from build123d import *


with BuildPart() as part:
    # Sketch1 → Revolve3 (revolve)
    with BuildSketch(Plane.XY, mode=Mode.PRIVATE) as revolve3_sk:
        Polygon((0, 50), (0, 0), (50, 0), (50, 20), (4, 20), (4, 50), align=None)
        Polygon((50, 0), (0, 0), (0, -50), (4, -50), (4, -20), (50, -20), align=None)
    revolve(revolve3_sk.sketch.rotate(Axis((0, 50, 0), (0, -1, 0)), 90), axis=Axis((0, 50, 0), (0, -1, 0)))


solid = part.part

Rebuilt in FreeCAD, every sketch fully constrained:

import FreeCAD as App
import Part
import Sketcher
from FreeCAD import Vector

doc = App.newDocument("Part")
body = doc.addObject("PartDesign::Body", "Body")

sketch1 = body.newObject("Sketcher::SketchObject", "Sketch")
sketch1.AttachmentSupport = (doc.getObject("XY_Plane"), [""])
sketch1.MapMode = "FlatFace"
sketch1.addGeometry(Part.LineSegment(Vector(0, 50, 0), Vector(0, -50, 0)), False)
sketch1.addGeometry(Part.LineSegment(Vector(0, -50, 0), Vector(4, -50, 0)), False)
sketch1.addGeometry(Part.LineSegment(Vector(4, -50, 0), Vector(4, -20, 0)), False)
sketch1.addGeometry(Part.LineSegment(Vector(4, -20, 0), Vector(50, -20, 0)), False)
sketch1.addGeometry(Part.LineSegment(Vector(50, -20, 0), Vector(50, 20, 0)), False)
sketch1.addGeometry(Part.LineSegment(Vector(50, 20, 0), Vector(4, 20, 0)), False)
sketch1.addGeometry(Part.LineSegment(Vector(4, 20, 0), Vector(4, 50, 0)), False)
sketch1.addGeometry(Part.LineSegment(Vector(4, 50, 0), Vector(0, 50, 0)), False)
sketch1.addConstraint(Sketcher.Constraint("Coincident", 0, 2, 1, 1))
sketch1.addConstraint(Sketcher.Constraint("Coincident", 1, 2, 2, 1))
sketch1.addConstraint(Sketcher.Constraint("Coincident", 2, 2, 3, 1))
sketch1.addConstraint(Sketcher.Constraint("Coincident", 3, 2, 4, 1))
sketch1.addConstraint(Sketcher.Constraint("Coincident", 4, 2, 5, 1))
sketch1.addConstraint(Sketcher.Constraint("Coincident", 5, 2, 6, 1))
sketch1.addConstraint(Sketcher.Constraint("Coincident", 6, 2, 7, 1))
sketch1.addConstraint(Sketcher.Constraint("Coincident", 7, 2, 0, 1))
sketch1.addConstraint(Sketcher.Constraint("Vertical", 0))
sketch1.addConstraint(Sketcher.Constraint("Horizontal", 1))
sketch1.addConstraint(Sketcher.Constraint("Vertical", 2))
sketch1.addConstraint(Sketcher.Constraint("Horizontal", 3))
sketch1.addConstraint(Sketcher.Constraint("Vertical", 4))
sketch1.addConstraint(Sketcher.Constraint("Horizontal", 5))
sketch1.addConstraint(Sketcher.Constraint("Vertical", 6))
sketch1.addConstraint(Sketcher.Constraint("Horizontal", 7))
sketch1.addConstraint(Sketcher.Constraint("Symmetric", 0, 2, 7, 2, -1, 1))
sketch1.addConstraint(Sketcher.Constraint("Symmetric", 2, 2, 5, 2, -1))
sketch1.addConstraint(Sketcher.Constraint("DistanceX", 1, 1, 1, 2, 4.0))
sketch1.addConstraint(Sketcher.Constraint("DistanceX", 3, 1, 3, 2, 46.0))
sketch1.addConstraint(Sketcher.Constraint("DistanceY", 0, 2, 0, 1, 100.0))
sketch1.addConstraint(Sketcher.Constraint("DistanceY", 2, 1, 2, 2, 30.0))
revolution = body.newObject("PartDesign::Revolution", "Revolution")
revolution.Profile = sketch1
revolution.ReferenceAxis = (sketch1, ["V_Axis"])
revolution.Angle = 360

doc.recompute()
